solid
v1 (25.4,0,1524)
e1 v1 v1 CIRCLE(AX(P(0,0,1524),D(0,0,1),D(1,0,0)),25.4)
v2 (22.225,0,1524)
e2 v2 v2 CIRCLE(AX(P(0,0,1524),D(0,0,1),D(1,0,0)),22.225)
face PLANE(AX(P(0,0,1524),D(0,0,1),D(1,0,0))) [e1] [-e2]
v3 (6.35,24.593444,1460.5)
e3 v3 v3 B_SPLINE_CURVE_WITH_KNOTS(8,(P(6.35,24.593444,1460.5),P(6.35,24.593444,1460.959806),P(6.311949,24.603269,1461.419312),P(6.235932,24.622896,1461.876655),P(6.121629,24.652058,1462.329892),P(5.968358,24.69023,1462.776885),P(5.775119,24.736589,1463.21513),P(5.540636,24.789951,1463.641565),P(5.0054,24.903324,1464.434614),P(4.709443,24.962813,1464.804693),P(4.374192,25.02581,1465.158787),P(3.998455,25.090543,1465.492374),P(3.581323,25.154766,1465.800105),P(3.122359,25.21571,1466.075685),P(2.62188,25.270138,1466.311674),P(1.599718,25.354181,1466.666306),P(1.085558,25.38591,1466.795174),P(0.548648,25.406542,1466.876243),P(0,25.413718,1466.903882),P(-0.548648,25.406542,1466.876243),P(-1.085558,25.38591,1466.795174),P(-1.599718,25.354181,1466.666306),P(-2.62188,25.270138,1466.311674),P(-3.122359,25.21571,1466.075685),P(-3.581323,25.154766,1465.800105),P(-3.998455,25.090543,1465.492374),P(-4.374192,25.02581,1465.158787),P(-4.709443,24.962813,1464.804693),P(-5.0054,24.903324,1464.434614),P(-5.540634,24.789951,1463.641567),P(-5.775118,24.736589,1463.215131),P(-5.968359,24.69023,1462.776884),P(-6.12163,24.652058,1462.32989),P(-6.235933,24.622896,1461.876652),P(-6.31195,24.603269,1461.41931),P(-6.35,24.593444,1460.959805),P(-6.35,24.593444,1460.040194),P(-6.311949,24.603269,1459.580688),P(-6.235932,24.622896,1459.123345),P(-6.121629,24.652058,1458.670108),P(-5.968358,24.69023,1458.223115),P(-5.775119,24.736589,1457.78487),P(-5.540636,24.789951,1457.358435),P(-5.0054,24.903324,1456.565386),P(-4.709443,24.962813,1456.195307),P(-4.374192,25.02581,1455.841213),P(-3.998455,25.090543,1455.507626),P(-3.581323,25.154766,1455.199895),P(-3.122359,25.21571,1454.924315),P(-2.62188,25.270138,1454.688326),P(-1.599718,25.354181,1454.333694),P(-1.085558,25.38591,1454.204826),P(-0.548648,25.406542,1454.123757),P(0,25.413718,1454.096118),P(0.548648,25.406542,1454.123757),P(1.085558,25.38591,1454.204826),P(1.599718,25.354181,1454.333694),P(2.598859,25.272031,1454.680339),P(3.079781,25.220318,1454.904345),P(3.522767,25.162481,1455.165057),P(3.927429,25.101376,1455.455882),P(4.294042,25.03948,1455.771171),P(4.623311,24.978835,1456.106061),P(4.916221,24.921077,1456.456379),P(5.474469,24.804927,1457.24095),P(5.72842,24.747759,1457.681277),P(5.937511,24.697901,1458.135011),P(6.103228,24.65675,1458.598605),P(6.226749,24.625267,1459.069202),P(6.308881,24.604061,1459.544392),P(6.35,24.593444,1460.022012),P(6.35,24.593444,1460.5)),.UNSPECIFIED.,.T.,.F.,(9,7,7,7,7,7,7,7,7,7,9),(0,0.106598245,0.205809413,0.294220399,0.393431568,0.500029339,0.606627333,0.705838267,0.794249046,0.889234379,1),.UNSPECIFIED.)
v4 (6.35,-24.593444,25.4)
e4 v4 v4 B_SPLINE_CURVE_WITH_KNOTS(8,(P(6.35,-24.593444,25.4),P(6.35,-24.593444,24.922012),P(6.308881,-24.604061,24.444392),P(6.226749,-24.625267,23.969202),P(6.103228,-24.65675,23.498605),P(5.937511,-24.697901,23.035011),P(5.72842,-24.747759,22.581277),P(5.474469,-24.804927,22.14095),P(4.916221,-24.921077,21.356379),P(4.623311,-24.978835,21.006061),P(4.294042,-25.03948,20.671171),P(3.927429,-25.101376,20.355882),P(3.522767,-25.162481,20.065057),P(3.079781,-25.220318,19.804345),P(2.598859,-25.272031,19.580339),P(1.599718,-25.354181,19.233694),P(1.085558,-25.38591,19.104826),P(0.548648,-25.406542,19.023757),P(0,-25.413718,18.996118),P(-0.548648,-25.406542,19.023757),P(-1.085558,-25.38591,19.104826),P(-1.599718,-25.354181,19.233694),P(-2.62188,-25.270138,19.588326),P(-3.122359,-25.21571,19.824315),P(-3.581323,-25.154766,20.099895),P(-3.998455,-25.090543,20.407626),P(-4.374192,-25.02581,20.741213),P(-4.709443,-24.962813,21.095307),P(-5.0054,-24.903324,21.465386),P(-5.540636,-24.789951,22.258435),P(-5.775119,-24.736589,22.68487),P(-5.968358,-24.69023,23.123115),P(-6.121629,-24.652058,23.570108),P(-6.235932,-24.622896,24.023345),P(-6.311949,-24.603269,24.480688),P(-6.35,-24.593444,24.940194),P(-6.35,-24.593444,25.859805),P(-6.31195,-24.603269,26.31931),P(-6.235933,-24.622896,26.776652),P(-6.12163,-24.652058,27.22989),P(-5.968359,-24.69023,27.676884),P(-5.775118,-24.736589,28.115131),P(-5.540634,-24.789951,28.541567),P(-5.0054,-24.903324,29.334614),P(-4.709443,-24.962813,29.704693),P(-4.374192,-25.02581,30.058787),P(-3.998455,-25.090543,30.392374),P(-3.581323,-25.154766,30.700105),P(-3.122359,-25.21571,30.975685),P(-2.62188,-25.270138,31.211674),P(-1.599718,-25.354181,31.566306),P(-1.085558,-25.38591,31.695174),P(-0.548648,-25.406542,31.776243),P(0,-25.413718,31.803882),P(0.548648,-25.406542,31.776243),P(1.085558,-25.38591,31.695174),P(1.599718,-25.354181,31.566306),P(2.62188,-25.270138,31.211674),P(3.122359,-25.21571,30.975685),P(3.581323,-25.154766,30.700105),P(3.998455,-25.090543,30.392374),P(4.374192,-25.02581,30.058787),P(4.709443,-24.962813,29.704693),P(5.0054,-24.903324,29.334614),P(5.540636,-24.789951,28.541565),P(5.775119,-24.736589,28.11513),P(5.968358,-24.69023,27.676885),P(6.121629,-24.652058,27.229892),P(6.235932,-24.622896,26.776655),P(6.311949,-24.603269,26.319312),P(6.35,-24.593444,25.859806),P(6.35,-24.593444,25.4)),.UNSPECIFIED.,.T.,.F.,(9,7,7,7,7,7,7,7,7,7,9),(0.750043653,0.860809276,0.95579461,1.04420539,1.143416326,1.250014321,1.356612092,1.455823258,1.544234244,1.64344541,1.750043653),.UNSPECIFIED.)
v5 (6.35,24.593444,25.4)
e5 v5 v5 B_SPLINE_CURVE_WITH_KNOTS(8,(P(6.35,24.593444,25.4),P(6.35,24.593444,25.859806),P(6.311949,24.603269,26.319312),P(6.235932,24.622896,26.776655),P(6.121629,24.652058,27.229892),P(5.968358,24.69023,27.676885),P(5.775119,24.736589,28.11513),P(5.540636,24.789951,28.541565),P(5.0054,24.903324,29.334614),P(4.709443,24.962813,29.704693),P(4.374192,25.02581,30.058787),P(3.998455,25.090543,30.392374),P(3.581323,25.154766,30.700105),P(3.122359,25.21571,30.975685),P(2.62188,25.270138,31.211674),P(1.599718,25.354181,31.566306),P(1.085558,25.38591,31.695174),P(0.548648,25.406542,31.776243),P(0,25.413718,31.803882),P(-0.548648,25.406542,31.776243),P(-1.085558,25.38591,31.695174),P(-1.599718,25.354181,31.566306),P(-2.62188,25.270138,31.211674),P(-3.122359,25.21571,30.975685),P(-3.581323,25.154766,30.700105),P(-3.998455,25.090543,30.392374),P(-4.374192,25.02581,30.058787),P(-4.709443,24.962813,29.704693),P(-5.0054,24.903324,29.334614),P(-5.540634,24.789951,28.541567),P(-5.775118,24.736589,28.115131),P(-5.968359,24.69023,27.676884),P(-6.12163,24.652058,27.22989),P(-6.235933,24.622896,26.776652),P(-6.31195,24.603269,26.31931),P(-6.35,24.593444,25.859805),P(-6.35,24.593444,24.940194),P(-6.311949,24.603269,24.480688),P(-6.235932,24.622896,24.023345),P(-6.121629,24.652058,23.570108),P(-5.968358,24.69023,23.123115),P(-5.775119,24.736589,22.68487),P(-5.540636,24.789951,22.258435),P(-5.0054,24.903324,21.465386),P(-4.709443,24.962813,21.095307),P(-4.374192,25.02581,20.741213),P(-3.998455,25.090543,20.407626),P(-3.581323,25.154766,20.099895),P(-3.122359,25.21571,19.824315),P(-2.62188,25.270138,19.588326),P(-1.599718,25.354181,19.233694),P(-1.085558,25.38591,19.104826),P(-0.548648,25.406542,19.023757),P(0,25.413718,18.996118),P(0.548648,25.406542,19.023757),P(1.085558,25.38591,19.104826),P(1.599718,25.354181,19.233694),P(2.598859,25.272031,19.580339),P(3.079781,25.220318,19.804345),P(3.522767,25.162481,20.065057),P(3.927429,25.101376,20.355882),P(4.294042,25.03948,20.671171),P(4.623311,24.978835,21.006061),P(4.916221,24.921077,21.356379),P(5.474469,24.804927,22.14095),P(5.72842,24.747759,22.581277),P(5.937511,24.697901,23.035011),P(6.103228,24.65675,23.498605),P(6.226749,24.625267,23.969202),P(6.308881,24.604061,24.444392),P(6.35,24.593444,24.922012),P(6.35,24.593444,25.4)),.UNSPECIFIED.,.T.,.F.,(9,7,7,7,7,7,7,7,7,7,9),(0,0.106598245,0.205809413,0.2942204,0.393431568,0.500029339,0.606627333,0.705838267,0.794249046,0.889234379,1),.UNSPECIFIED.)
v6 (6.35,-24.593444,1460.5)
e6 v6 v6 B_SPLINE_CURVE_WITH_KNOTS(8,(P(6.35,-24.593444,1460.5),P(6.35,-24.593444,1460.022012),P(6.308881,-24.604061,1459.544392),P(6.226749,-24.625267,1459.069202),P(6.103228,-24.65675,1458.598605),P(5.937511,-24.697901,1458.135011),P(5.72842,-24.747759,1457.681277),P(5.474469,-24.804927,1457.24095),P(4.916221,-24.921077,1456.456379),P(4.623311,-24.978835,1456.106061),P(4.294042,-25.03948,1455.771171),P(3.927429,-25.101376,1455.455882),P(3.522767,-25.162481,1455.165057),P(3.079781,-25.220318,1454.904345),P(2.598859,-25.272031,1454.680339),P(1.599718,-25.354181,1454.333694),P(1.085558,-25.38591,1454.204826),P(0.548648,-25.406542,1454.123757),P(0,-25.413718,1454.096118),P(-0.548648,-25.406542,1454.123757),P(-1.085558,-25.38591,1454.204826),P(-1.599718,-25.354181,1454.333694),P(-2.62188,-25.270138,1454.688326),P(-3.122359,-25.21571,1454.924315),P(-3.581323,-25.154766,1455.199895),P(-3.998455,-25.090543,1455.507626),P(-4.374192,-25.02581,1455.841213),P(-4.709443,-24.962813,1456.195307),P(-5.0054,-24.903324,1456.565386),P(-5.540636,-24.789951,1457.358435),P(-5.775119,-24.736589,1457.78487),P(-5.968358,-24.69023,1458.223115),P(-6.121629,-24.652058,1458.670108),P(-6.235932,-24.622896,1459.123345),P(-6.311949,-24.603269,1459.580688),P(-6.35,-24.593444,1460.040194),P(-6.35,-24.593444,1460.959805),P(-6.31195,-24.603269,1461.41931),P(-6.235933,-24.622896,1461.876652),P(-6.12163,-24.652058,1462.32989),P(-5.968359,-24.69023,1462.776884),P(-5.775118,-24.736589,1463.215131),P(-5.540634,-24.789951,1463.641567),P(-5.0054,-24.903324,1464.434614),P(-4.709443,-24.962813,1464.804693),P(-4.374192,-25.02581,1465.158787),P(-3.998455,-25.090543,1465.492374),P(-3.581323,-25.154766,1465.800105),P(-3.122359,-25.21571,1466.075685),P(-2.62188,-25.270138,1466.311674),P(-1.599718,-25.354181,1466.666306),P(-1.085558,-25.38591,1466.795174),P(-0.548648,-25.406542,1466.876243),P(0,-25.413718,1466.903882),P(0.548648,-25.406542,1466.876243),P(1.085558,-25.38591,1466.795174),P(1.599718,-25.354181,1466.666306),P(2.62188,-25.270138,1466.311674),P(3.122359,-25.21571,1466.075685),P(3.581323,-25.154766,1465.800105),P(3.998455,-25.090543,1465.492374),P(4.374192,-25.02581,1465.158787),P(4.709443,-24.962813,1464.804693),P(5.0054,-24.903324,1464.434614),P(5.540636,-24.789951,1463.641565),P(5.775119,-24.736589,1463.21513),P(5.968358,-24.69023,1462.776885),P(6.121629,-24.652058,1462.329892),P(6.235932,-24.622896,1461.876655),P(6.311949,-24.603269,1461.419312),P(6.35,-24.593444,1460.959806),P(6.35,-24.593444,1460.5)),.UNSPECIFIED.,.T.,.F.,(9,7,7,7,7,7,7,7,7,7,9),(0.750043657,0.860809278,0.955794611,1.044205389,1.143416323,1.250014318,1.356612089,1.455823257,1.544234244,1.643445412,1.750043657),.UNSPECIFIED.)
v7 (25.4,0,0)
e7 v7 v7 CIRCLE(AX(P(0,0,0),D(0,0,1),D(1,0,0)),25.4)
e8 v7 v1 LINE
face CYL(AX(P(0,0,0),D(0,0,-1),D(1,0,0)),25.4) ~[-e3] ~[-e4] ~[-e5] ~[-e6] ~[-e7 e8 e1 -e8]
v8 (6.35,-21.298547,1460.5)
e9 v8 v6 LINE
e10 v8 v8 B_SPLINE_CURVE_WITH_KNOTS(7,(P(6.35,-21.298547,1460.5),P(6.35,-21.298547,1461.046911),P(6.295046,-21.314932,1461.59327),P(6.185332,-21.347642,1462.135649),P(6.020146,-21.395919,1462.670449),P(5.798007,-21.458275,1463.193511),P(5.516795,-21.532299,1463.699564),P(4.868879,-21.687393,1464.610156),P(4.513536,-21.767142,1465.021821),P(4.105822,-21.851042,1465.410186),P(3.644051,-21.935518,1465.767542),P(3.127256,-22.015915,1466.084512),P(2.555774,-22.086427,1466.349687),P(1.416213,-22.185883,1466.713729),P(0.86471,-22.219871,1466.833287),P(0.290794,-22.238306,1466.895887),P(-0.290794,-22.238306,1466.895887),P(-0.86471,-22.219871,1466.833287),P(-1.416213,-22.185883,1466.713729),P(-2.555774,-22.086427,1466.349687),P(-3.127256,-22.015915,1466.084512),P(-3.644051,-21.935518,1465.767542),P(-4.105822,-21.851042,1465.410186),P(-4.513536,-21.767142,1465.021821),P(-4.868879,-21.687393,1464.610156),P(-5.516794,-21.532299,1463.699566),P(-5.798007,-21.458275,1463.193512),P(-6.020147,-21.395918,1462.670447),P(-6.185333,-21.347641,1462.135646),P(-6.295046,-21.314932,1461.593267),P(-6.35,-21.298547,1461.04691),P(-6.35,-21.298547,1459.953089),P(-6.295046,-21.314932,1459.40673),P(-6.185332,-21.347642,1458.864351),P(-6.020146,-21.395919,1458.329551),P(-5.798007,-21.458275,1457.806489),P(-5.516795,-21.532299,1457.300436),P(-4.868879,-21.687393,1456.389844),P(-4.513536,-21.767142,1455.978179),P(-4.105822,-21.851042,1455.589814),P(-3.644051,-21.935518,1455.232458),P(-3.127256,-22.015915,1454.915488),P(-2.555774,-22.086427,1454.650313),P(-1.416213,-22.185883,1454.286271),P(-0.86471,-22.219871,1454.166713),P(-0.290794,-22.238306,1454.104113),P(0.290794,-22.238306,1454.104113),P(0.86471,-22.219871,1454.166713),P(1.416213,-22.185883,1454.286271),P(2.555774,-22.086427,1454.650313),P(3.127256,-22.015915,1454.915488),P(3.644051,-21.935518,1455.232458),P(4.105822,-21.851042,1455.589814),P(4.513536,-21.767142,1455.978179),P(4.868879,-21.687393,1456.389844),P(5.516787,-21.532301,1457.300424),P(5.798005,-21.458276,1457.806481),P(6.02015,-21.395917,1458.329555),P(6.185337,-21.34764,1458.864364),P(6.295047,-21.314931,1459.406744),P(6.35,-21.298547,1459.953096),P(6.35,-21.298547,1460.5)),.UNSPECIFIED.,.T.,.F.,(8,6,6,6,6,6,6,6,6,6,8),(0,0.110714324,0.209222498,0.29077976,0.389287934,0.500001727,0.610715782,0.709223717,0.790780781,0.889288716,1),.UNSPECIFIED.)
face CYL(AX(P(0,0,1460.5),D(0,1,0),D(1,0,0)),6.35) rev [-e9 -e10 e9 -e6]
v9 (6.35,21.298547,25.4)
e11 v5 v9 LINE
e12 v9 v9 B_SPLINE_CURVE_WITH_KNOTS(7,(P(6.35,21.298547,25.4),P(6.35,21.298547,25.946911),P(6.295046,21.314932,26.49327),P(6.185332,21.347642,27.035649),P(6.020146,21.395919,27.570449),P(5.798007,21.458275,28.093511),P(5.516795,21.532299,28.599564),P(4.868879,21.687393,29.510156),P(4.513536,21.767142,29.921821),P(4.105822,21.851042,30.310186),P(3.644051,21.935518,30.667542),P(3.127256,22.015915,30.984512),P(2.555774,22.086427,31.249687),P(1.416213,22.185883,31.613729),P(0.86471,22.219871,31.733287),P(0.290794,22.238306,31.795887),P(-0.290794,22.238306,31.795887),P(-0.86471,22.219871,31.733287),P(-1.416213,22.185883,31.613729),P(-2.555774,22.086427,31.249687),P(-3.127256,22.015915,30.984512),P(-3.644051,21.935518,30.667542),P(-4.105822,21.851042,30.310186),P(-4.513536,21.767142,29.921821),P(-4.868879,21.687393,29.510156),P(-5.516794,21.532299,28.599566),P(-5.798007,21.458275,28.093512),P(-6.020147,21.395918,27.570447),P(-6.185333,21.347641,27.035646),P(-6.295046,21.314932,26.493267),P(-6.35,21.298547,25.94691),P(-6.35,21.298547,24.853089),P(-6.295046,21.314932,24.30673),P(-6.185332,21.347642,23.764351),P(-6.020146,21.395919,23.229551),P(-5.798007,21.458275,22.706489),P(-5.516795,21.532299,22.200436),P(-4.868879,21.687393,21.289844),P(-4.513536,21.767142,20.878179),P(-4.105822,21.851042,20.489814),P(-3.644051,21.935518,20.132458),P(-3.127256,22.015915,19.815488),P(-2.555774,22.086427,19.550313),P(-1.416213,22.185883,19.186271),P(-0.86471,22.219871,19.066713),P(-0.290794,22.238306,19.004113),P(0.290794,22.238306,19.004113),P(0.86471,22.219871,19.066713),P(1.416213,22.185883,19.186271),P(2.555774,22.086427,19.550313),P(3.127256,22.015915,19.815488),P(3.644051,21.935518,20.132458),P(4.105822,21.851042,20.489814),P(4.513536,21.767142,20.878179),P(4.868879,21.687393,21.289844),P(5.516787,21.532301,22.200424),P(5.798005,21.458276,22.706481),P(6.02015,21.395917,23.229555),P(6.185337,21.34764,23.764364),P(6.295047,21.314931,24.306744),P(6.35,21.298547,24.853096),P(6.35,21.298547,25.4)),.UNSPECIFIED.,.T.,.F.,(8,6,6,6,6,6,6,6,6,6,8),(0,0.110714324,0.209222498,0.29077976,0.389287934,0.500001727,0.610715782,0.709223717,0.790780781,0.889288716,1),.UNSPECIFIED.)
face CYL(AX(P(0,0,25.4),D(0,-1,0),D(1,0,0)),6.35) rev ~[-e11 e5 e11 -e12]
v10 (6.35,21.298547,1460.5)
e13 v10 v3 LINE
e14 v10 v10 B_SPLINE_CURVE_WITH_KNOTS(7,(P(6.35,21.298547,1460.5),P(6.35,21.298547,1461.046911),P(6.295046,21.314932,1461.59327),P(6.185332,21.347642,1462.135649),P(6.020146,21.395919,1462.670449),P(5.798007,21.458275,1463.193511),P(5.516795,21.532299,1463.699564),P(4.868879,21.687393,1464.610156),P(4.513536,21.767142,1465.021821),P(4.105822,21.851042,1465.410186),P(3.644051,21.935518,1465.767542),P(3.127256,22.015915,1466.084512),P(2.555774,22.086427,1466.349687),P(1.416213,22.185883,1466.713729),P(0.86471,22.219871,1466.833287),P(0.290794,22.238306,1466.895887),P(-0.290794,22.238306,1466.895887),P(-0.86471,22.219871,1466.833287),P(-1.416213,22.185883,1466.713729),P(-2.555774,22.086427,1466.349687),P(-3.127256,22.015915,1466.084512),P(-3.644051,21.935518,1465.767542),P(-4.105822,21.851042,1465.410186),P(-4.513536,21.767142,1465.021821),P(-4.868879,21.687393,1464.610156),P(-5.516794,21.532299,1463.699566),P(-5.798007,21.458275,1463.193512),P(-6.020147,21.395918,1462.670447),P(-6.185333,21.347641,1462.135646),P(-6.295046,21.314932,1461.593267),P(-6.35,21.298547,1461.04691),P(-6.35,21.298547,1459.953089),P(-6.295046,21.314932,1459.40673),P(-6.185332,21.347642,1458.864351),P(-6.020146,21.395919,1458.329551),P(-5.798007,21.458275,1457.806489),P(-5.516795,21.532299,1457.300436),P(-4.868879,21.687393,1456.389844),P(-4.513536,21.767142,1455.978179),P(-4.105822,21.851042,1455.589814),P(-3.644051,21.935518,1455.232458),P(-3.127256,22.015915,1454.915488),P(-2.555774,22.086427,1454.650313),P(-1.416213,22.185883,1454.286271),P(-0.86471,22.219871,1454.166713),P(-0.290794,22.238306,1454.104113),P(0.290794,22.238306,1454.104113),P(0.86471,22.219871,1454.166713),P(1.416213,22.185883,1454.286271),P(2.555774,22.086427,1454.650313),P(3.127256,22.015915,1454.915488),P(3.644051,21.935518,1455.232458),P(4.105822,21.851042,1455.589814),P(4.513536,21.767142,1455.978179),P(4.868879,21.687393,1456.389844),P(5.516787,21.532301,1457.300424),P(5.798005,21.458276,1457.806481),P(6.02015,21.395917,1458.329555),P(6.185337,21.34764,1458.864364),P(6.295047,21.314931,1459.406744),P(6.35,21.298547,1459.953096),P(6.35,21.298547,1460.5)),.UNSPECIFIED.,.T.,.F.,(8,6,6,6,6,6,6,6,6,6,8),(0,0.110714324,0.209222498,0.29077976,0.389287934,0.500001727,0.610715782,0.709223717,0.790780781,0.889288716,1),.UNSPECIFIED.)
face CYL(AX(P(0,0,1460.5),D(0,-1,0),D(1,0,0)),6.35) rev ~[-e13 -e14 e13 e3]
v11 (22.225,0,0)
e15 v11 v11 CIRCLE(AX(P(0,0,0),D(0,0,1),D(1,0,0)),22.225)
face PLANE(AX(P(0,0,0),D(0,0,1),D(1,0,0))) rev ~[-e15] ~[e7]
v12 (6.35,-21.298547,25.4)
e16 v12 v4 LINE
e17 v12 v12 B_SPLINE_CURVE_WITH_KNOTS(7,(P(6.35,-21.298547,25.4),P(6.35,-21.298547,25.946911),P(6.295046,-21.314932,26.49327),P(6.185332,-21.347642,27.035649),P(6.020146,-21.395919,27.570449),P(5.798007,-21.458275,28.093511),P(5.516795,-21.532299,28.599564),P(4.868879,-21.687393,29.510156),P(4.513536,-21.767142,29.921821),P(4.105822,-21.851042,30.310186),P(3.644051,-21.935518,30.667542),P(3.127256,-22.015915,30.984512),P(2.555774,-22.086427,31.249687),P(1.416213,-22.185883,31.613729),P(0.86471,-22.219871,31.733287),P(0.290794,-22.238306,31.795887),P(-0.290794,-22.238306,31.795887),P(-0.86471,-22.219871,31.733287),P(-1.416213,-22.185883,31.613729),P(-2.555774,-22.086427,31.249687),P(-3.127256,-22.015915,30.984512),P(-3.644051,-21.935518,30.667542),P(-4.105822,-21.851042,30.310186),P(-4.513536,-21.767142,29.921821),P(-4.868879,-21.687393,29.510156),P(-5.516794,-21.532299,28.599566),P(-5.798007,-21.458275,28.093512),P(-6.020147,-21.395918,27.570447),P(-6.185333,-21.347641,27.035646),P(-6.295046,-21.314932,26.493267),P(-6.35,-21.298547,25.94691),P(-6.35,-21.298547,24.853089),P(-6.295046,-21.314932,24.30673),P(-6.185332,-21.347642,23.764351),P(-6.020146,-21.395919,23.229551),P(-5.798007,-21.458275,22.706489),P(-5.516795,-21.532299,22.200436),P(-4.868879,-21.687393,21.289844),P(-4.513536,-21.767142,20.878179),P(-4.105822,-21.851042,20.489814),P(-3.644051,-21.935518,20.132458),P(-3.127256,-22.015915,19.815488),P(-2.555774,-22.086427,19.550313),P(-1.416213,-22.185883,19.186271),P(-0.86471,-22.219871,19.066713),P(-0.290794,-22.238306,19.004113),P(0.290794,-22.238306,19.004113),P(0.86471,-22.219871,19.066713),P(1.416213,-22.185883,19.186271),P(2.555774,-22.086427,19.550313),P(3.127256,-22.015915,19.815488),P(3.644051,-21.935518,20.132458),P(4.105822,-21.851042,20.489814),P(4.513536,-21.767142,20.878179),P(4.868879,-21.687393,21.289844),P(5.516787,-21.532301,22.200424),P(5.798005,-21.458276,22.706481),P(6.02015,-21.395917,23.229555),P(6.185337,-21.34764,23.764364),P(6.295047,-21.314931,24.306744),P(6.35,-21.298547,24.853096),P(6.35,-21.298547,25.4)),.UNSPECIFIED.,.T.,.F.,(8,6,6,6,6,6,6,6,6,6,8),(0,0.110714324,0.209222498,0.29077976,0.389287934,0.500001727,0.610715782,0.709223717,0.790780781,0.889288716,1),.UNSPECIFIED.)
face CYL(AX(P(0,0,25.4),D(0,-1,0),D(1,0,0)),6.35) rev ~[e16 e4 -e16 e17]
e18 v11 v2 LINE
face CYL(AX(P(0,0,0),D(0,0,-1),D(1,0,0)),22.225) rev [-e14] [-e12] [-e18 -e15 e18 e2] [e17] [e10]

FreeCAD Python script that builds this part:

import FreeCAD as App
import Part
import Sketcher
from FreeCAD import Vector
Q = App.Units.Quantity

doc = App.newDocument("Part")
body = doc.addObject("PartDesign::Body", "Body")

sketch1 = body.newObject("Sketcher::SketchObject", "Sketch")
sketch1.AttachmentSupport = (doc.getObject("XY_Plane"), [""])
sketch1.MapMode = "FlatFace"
sketch1.addGeometry([
    Part.Circle(Vector(0, 0, 0), Vector(0, 0, 1), 25),
    Part.Circle(Vector(0, 0, 0), Vector(0, 0, 1), 22),
], False)
sketch1.addConstraint([
    Sketcher.Constraint("Coincident", 0, 3, -1, 1),
    Sketcher.Constraint("Coincident", 1, 3, -1, 1),
    Sketcher.Constraint("Diameter", 0, Q("2 in")),
    Sketcher.Constraint("Diameter", 1, Q("1.75 in")),
])
pad1 = body.newObject("PartDesign::Pad", "Pad")
pad1.Profile = sketch1
pad1.Length = Q("60 in")

sketch2 = body.newObject("Sketcher::SketchObject", "Sketch001")
sketch2.AttachmentSupport = (doc.getObject("XZ_Plane"), [""])
sketch2.MapMode = "FlatFace"
sketch2.addGeometry([
    Part.Circle(Vector(0, 1460, 0), Vector(0, 0, 1), 6),
    Part.Circle(Vector(0, 25, 0), Vector(0, 0, 1), 6),
], False)
sketch2.addConstraint([
    Sketcher.Constraint("Equal", 0, 1),
    Sketcher.Constraint("PointOnObject", 0, 3, -2),
    Sketcher.Constraint("PointOnObject", 1, 3, -2),
    Sketcher.Constraint("Diameter", 0, Q("0.5 in")),
    Sketcher.Constraint("DistanceY", -1, 1, 1, 3, Q("1 in")),
    Sketcher.Constraint("DistanceY", -1, 1, 0, 3, Q("57.5 in")),
])
pocket1 = body.newObject("PartDesign::Pocket", "Pocket")
pocket1.Profile = sketch2
pocket1.Length = Q("2 in")
pocket1.Midplane = True

doc.recompute()
